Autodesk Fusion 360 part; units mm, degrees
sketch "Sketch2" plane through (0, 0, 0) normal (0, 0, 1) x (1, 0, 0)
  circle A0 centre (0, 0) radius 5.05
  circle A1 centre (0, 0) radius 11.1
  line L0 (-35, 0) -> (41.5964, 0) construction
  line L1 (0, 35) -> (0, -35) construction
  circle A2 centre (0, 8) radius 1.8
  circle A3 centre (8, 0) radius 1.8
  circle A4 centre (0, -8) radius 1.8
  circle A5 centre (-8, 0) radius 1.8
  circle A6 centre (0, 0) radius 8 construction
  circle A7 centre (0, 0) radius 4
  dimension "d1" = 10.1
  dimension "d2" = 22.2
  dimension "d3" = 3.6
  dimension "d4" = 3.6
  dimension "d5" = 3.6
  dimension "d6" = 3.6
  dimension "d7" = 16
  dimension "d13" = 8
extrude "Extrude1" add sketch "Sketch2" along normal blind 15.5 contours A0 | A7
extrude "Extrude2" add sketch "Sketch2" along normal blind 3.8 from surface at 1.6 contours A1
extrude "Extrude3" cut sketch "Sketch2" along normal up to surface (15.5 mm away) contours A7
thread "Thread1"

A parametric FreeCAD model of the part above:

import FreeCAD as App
import Part
import Sketcher
from FreeCAD import Vector
Q = App.Units.Quantity

doc = App.newDocument("Part")
body = doc.addObject("PartDesign::Body", "Body")

# Sketch on XY plane
sketch1 = body.newObject("Sketcher::SketchObject", "Sketch")
sketch1.AttachmentSupport = (doc.getObject("XY_Plane"), [""])
sketch1.MapMode = "FlatFace"
sketch1.addGeometry(Part.Circle(Vector(0, 0, 0), Vector(0, 0, 1), 5), False)
sketch1.addConstraint([
    Sketcher.Constraint("Coincident", 0, 3, -1, 1),
    Sketcher.Constraint("Diameter", 0, Q("10.1 mm")),
])
pad1 = body.newObject("PartDesign::Pad", "Pad")
pad1.Profile = sketch1
pad1.Length = 15.5

# Sketch on XY plane
sketch2 = body.newObject("Sketcher::SketchObject", "Sketch001")
sketch2.AttachmentSupport = (doc.getObject("XY_Plane"), [""])
sketch2.MapMode = "FlatFace"
sketch2.AttachmentOffset = App.Placement(Vector(0, 0, 1.6), App.Rotation())
sketch2.addGeometry([
    Part.Circle(Vector(0, 0, 0), Vector(0, 0, 1), 11.1),  # 0
    Part.Circle(Vector(0, -8, 0), Vector(0, 0, 1), 1.8),  # 1
    Part.Circle(Vector(-8, 0, 0), Vector(0, 0, 1), 1.8),  # 2
    Part.Circle(Vector(0, 0, 0), Vector(0, 0, 1), 5),  # 3
    Part.Circle(Vector(8, 0, 0), Vector(0, 0, 1), 1.8),  # 4
    Part.Circle(Vector(0, 8, 0), Vector(0, 0, 1), 1.8),  # 5
], False)
sketch2.addConstraint([
    Sketcher.Constraint("Coincident", 0, 3, -1, 1),
    Sketcher.Constraint("Coincident", 3, 3, -1, 1),
    Sketcher.Constraint("Equal", 1, 2),
    Sketcher.Constraint("Equal", 2, 4),
    Sketcher.Constraint("Equal", 4, 5),
    Sketcher.Constraint("Symmetric", 2, 3, 4, 3, -1, 1),
    Sketcher.Constraint("Symmetric", 1, 3, 5, 3, -1, 1),
    Sketcher.Constraint("PointOnObject", 1, 3, -2),
    Sketcher.Constraint("PointOnObject", 2, 3, -1),
    Sketcher.Constraint("Diameter", 0, Q("22.2 mm")),
    Sketcher.Constraint("Diameter", 1, Q("3.6 mm")),
    Sketcher.Constraint("Diameter", 3, Q("10.1 mm")),
    Sketcher.Constraint("DistanceY", 1, 3, -1, 1, Q("8 mm")),
    Sketcher.Constraint("DistanceX", 2, 3, -1, 1, Q("8 mm")),
])
pad2 = body.newObject("PartDesign::Pad", "Pad001")
pad2.Profile = sketch2
pad2.Length = 3.8

# Sketch on XY plane
sketch3 = body.newObject("Sketcher::SketchObject", "Sketch002")
sketch3.AttachmentSupport = (doc.getObject("XY_Plane"), [""])
sketch3.MapMode = "FlatFace"
sketch3.addGeometry(Part.Circle(Vector(0, 0, 0), Vector(0, 0, 1), 4), False)
sketch3.addConstraint([
    Sketcher.Constraint("Coincident", 0, 3, -1, 1),
    Sketcher.Constraint("Diameter", 0, Q("8 mm")),
])
pocket1 = body.newObject("PartDesign::Pocket", "Pocket")
pocket1.Profile = sketch3
pocket1.Length = 15.5
pocket1.Reversed = True

doc.recompute()
